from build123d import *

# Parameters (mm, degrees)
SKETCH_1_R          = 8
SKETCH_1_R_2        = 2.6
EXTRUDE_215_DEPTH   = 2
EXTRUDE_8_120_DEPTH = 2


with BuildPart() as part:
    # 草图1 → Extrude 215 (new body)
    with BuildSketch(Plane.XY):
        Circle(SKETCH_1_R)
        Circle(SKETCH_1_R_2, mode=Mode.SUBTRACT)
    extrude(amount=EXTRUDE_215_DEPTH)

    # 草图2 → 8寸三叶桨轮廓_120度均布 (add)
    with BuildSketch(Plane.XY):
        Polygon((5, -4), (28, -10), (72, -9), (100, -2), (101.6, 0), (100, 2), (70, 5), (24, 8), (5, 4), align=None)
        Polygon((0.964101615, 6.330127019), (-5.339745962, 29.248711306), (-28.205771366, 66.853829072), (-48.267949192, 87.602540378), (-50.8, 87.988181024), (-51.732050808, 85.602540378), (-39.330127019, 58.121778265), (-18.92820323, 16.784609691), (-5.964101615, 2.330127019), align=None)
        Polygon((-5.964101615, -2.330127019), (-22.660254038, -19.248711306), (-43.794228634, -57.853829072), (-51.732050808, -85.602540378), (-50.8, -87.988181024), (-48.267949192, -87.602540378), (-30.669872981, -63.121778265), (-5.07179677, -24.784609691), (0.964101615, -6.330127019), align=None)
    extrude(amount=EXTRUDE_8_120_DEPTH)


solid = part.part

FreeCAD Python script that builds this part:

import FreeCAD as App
import Part
import Sketcher
Q = App.Units.Quantity


def add_polygon(sketch, points):
    """Adds a closed chain of lines whose ends are joined by coincident constraints."""
    first, n = sketch.GeometryCount, len(points)
    for a, b in zip(points, points[1:] + points[:1]):
        sketch.addGeometry(Part.LineSegment(App.Vector(*a, 0), App.Vector(*b, 0)), False)
    for i in range(n):
        sketch.addConstraint(Sketcher.Constraint("Coincident", first + i, 2, first + (i + 1) % n, 1))

doc = App.newDocument("Part")
body = doc.addObject("PartDesign::Body", "Body")

sketch1 = doc.addObject("Sketcher::SketchObject", "Sketch")
body.addObject(sketch1)
sketch1.AttachmentSupport = (doc.XY_Plane, [""])
sketch1.MapMode = "FlatFace"
sketch1.addGeometry(Part.Circle(App.Vector(0, 0, 0), App.Vector(0, 0, 1), 8), False)
sketch1.addGeometry(Part.Circle(App.Vector(0, 0, 0), App.Vector(0, 0, 1), 2.6), False)
sketch1.addConstraint(Sketcher.Constraint("Coincident", 0, 3, -1, 1))
sketch1.addConstraint(Sketcher.Constraint("Coincident", 1, 3, -1, 1))
sketch1.addConstraint(Sketcher.Constraint("Diameter", 0, 16.0))
sketch1.addConstraint(Sketcher.Constraint("Diameter", 1, 5.2))
pad1 = doc.addObject("PartDesign::Pad", "Pad")
body.addObject(pad1)
pad1.Profile = sketch1
pad1.Length = 2

sketch2 = doc.addObject("Sketcher::SketchObject", "Sketch001")
body.addObject(sketch2)
sketch2.AttachmentSupport = (doc.XY_Plane, [""])
sketch2.MapMode = "FlatFace"
add_polygon(sketch2, [(5, -4), (28, -10), (72, -9), (100, -2), (101.6, 0), (100, 2), (70, 5), (24, 8), (5, 4)])
add_polygon(sketch2, [(0.964102, 6.330127), (-5.339746, 29.248711), (-28.205771, 66.853829), (-48.267949, 87.60254), (-50.8, 87.988181), (-51.732051, 85.60254), (-39.330127, 58.121778), (-18.928203, 16.78461), (-5.964102, 2.330127)])
add_polygon(sketch2, [(-5.964102, -2.330127), (-22.660254, -19.248711), (-43.794229, -57.853829), (-51.732051, -85.60254), (-50.8, -87.988181), (-48.267949, -87.60254), (-30.669873, -63.121778), (-5.071797, -24.78461), (0.964102, -6.330127)])
sketch2.addConstraint(Sketcher.Constraint("Vertical", 8))
sketch2.addConstraint(Sketcher.Constraint("Symmetric", 2, 2, 4, 2, -1))
sketch2.addConstraint(Sketcher.Constraint("Symmetric", 13, 2, 20, 2, -1))
sketch2.addConstraint(Sketcher.Constraint("Symmetric", 12, 2, 21, 2, -1))
sketch2.addConstraint(Sketcher.Constraint("Symmetric", 11, 2, 22, 2, -1))
sketch2.addConstraint(Sketcher.Constraint("Symmetric", 17, 2, 25, 2, -1))
sketch2.addConstraint(Sketcher.Constraint("Symmetric", 16, 2, 26, 2, -1))
sketch2.addConstraint(Sketcher.Constraint("PointOnObject", 3, 2, -1))
sketch2.addConstraint(Sketcher.Constraint("Equal", 0, 9))
sketch2.addConstraint(Sketcher.Constraint("Equal", 1, 10))
sketch2.addConstraint(Sketcher.Constraint("Equal", 2, 11))
sketch2.addConstraint(Sketcher.Constraint("Equal", 4, 12))
sketch2.addConstraint(Sketcher.Constraint("Equal", 12, 13))
sketch2.addConstraint(Sketcher.Constraint("Equal", 5, 14))
sketch2.addConstraint(Sketcher.Constraint("Equal", 6, 15))
sketch2.addConstraint(Sketcher.Constraint("Equal", 7, 16))
sketch2.addConstraint(Sketcher.Constraint("Equal", 9, 18))
sketch2.addConstraint(Sketcher.Constraint("Equal", 10, 19))
sketch2.addConstraint(Sketcher.Constraint("Equal", 11, 20))
sketch2.addConstraint(Sketcher.Constraint("Equal", 14, 23))
sketch2.addConstraint(Sketcher.Constraint("Equal", 15, 24))
sketch2.addConstraint(Sketcher.Constraint("Equal", 16, 25))
sketch2.addConstraint(Sketcher.Constraint("DistanceY", 8, 2, 8, 1, 8.0))
sketch2.addConstraint(Sketcher.Constraint("Angle", 17, Q("30 deg")))
sketch2.addConstraint(Sketcher.Constraint("Distance", 17, 8.0))
sketch2.addConstraint(Sketcher.Constraint("DistanceX", -1, 1, 0, 2, 28.0))
sketch2.addConstraint(Sketcher.Constraint("DistanceY", 0, 2, -1, 1, 10.0))
sketch2.addConstraint(Sketcher.Constraint("DistanceX", -1, 1, 1, 2, 72.0))
sketch2.addConstraint(Sketcher.Constraint("DistanceY", 1, 2, -1, 1, 9.0))
sketch2.addConstraint(Sketcher.Constraint("DistanceX", -1, 1, 2, 2, 100.0))
sketch2.addConstraint(Sketcher.Constraint("DistanceY", 2, 2, -1, 1, 2.0))
sketch2.addConstraint(Sketcher.Constraint("DistanceX", -1, 1, 5, 2, 70.0))
sketch2.addConstraint(Sketcher.Constraint("DistanceY", -1, 1, 5, 2, 5.0))
sketch2.addConstraint(Sketcher.Constraint("DistanceX", -1, 1, 6, 2, 24.0))
sketch2.addConstraint(Sketcher.Constraint("DistanceY", -1, 1, 6, 2, 8.0))
sketch2.addConstraint(Sketcher.Constraint("DistanceX", -1, 1, 7, 2, 5.0))
sketch2.addConstraint(Sketcher.Constraint("DistanceY", -1, 1, 7, 2, 4.0))
sketch2.addConstraint(Sketcher.Constraint("DistanceY", 13, 2, 11, 2, 2.0))
sketch2.addConstraint(Sketcher.Constraint("DistanceX", -1, 1, 3, 2, 101.6))
sketch2.addConstraint(Sketcher.Constraint("DistanceX", 12, 2, -1, 1, 50.8))
sketch2.addConstraint(Sketcher.Constraint("DistanceX", 16, 2, -1, 1, 5.964102))
sketch2.addConstraint(Sketcher.Constraint("DistanceX", 13, 2, 11, 2, 3.464102))
sketch2.addConstraint(Sketcher.Constraint("DistanceY", 15, 2, 9, 2, 12.464102))
sketch2.addConstraint(Sketcher.Constraint("DistanceX", 15, 2, 16, 2, 12.964102))
sketch2.addConstraint(Sketcher.Constraint("DistanceY", 24, 2, 18, 2, 5.535898))
sketch2.addConstraint(Sketcher.Constraint("DistanceX", 24, 2, 17, 2, 6.035898))
sketch2.addConstraint(Sketcher.Constraint("DistanceY", -1, 1, 9, 2, 29.248711))
sketch2.addConstraint(Sketcher.Constraint("DistanceX", 10, 2, -1, 1, 28.205771))
pad2 = doc.addObject("PartDesign::Pad", "Pad001")
body.addObject(pad2)
pad2.Profile = sketch2
pad2.Length = 2

doc.recompute()
